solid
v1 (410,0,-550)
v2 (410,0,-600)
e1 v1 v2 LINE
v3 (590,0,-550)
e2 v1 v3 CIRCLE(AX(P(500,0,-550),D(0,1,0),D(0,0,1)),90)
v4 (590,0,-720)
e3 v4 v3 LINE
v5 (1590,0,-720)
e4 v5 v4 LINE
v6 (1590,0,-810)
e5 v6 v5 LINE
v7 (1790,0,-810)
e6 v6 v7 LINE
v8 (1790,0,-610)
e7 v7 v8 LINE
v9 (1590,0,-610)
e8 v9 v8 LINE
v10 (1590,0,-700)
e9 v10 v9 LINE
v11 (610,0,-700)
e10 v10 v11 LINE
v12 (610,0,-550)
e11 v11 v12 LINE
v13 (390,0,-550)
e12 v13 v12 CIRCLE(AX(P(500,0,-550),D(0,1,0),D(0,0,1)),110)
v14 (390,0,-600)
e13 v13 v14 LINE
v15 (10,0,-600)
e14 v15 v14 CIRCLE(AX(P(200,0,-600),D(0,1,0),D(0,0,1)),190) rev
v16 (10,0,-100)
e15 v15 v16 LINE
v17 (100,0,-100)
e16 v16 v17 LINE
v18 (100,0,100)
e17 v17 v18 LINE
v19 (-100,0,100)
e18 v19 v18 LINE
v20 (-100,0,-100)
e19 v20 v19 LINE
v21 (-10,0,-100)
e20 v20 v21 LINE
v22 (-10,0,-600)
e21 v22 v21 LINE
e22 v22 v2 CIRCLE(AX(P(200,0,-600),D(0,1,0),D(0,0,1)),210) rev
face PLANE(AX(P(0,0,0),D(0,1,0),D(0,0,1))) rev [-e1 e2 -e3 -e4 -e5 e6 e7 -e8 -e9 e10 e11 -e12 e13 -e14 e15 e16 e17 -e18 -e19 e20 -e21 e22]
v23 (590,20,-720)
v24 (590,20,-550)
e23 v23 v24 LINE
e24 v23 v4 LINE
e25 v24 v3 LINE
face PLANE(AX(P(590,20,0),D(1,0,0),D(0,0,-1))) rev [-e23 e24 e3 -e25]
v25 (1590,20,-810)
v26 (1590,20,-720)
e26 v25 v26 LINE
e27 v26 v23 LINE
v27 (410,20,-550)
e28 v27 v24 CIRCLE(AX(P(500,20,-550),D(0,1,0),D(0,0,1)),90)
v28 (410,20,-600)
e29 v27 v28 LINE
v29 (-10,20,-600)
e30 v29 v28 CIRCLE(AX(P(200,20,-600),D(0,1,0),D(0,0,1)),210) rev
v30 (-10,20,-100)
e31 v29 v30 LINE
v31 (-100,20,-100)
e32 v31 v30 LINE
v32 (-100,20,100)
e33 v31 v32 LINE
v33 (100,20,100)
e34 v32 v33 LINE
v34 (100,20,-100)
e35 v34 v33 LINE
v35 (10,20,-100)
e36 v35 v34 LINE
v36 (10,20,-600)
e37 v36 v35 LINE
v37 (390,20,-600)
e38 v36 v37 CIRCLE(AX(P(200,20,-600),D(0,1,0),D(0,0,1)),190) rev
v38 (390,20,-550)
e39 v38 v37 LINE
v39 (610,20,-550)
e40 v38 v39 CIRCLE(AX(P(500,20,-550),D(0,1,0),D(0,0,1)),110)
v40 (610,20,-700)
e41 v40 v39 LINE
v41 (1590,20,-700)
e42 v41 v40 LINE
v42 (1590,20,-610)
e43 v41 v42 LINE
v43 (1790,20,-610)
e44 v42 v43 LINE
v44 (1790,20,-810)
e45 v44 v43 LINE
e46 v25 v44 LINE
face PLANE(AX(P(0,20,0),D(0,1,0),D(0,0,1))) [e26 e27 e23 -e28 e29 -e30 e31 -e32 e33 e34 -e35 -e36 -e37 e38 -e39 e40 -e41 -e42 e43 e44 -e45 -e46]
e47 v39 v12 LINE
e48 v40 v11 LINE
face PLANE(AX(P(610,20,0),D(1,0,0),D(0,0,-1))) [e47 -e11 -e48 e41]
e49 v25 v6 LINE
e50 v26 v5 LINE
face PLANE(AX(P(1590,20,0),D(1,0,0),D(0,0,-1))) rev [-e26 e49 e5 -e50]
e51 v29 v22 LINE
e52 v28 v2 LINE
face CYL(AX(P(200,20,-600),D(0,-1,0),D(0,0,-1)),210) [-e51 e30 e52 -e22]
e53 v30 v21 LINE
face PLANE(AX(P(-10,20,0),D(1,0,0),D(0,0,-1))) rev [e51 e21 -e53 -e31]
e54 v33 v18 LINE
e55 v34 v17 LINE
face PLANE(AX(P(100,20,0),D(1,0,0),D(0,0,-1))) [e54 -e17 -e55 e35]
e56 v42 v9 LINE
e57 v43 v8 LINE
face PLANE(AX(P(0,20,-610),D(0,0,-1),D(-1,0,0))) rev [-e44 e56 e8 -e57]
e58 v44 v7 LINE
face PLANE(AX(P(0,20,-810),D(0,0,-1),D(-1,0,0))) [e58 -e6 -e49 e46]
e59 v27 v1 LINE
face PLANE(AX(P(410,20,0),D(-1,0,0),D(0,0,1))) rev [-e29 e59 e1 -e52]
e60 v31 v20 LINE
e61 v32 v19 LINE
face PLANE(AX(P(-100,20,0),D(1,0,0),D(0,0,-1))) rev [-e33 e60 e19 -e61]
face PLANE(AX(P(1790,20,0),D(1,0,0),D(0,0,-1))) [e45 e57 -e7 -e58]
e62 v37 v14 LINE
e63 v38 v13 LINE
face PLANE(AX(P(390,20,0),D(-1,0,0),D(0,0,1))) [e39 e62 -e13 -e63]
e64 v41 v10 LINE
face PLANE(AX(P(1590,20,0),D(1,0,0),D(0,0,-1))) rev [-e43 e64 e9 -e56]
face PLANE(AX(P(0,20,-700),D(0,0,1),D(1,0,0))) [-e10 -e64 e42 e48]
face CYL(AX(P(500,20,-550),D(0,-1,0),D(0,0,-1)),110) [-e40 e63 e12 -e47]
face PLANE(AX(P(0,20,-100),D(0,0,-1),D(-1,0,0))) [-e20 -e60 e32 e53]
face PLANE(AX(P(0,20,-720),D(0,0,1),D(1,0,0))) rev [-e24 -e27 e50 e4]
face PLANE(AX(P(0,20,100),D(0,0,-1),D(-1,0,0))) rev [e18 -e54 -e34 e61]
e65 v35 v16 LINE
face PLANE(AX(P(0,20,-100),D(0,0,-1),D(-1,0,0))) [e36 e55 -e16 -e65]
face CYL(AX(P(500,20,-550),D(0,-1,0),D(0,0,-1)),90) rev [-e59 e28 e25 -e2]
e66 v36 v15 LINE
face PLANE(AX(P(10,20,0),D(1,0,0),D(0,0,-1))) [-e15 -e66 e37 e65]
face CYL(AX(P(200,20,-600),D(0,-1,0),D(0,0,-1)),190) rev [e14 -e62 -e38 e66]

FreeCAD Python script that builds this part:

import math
import FreeCAD as App
import Part
import Sketcher

V = App.Vector

doc = App.newDocument("Part")
body = doc.addObject("PartDesign::Body", "Body")

sketch1 = body.newObject("Sketcher::SketchObject", "Sketch")
sketch1.AttachmentSupport = (doc.getObject("XZ_Plane"), [""])
sketch1.MapMode = "FlatFace"
sketch1.addGeometry([
    Part.LineSegment(V(-100, -100, 0), V(-100, 100, 0)),
    Part.LineSegment(V(-100, 100, 0), V(100, 100, 0)),
    Part.LineSegment(V(100, 100, 0), V(100, -100, 0)),
    Part.LineSegment(V(100, -100, 0), V(10, -100, 0)),
    Part.LineSegment(V(10, -100, 0), V(10, -600, 0)),
    Part.ArcOfCircle(Part.Circle(V(200, -600, 0), V(0, 0, 1), 190), math.radians(180), math.radians(360)),
    Part.LineSegment(V(390, -600, 0), V(390, -550, 0)),
    Part.ArcOfCircle(Part.Circle(V(500, -550, 0), V(0, 0, 1), 110), math.radians(0), math.radians(180)),
    Part.LineSegment(V(610, -550, 0), V(610, -700, 0)),
    Part.LineSegment(V(610, -700, 0), V(1590, -700, 0)),
    Part.LineSegment(V(1590, -700, 0), V(1590, -610, 0)),
    Part.LineSegment(V(1590, -610, 0), V(1790, -610, 0)),
    Part.LineSegment(V(1790, -610, 0), V(1790, -810, 0)),
    Part.LineSegment(V(1790, -810, 0), V(1590, -810, 0)),
    Part.LineSegment(V(1590, -810, 0), V(1590, -720, 0)),
    Part.LineSegment(V(1590, -720, 0), V(590, -720, 0)),
    Part.LineSegment(V(590, -720, 0), V(590, -550, 0)),
    Part.ArcOfCircle(Part.Circle(V(500, -550, 0), V(0, 0, 1), 90), math.radians(0), math.radians(180)),
    Part.LineSegment(V(410, -550, 0), V(410, -600, 0)),
    Part.ArcOfCircle(Part.Circle(V(200, -600, 0), V(0, 0, 1), 210), math.radians(180), math.radians(360)),
    Part.LineSegment(V(-10, -600, 0), V(-10, -100, 0)),
    Part.LineSegment(V(-10, -100, 0), V(-100, -100, 0)),
], False)
sketch1.addConstraint([
    Sketcher.Constraint("Coincident", 0, 2, 1, 1),
    Sketcher.Constraint("Coincident", 1, 2, 2, 1),
    Sketcher.Constraint("Coincident", 2, 2, 3, 1),
    Sketcher.Constraint("Coincident", 3, 2, 4, 1),
    Sketcher.Constraint("Tangent", 4, 2, 5, 1),
    Sketcher.Constraint("Tangent", 5, 2, 6, 1),
    Sketcher.Constraint("Tangent", 6, 2, 7, 2),
    Sketcher.Constraint("Tangent", 7, 1, 8, 1),
    Sketcher.Constraint("Coincident", 8, 2, 9, 1),
    Sketcher.Constraint("Coincident", 9, 2, 10, 1),
    Sketcher.Constraint("Coincident", 10, 2, 11, 1),
    Sketcher.Constraint("Coincident", 11, 2, 12, 1),
    Sketcher.Constraint("Coincident", 12, 2, 13, 1),
    Sketcher.Constraint("Coincident", 13, 2, 14, 1),
    Sketcher.Constraint("Coincident", 14, 2, 15, 1),
    Sketcher.Constraint("Coincident", 15, 2, 16, 1),
    Sketcher.Constraint("Tangent", 16, 2, 17, 1),
    Sketcher.Constraint("Tangent", 17, 2, 18, 1),
    Sketcher.Constraint("Tangent", 18, 2, 19, 2),
    Sketcher.Constraint("Tangent", 19, 1, 20, 1),
    Sketcher.Constraint("Coincident", 20, 2, 21, 1),
    Sketcher.Constraint("Coincident", 21, 2, 0, 1),
    Sketcher.Constraint("Vertical", 0),
    Sketcher.Constraint("Horizontal", 1),
    Sketcher.Constraint("Vertical", 2),
    Sketcher.Constraint("Horizontal", 3),
    Sketcher.Constraint("Vertical", 4),
    Sketcher.Constraint("Vertical", 6),
    Sketcher.Constraint("Vertical", 8),
    Sketcher.Constraint("Horizontal", 9),
    Sketcher.Constraint("Vertical", 10),
    Sketcher.Constraint("Horizontal", 11),
    Sketcher.Constraint("Vertical", 12),
    Sketcher.Constraint("Horizontal", 13),
    Sketcher.Constraint("Vertical", 14),
    Sketcher.Constraint("Horizontal", 15),
    Sketcher.Constraint("Vertical", 16),
    Sketcher.Constraint("Vertical", 18),
    Sketcher.Constraint("Vertical", 20),
    Sketcher.Constraint("Horizontal", 21),
    Sketcher.Constraint("Coincident", 17, 3, 7, 3),
    Sketcher.Constraint("Coincident", 19, 3, 5, 3),
    Sketcher.Constraint("Symmetric", 0, 2, 2, 2, -1, 1),
    Sketcher.Constraint("Symmetric", 3, 2, 20, 2, -2),
    Sketcher.Constraint("Vertical", 10, 2, 13, 2),
    Sketcher.Constraint("Equal", 1, 11),
    Sketcher.Constraint("Equal", 13, 0),
    Sketcher.Constraint("Equal", 21, 10),
    Sketcher.Constraint("Equal", 2, 12),
    Sketcher.Constraint("Equal", 10, 14),
    Sketcher.Constraint("Radius", 5, 190.0),
    Sketcher.Constraint("Radius", 7, 110.0),
    Sketcher.Constraint("Radius", 17, 90.0),
    Sketcher.Constraint("DistanceX", 1, 1, 1, 2, 200.0),
    Sketcher.Constraint("DistanceX", 9, 1, 9, 2, 980.0),
    Sketcher.Constraint("DistanceY", 4, 2, 4, 1, 500.0),
    Sketcher.Constraint("DistanceY", 6, 1, 6, 2, 50.0),
    Sketcher.Constraint("DistanceY", 8, 2, 8, 1, 150.0),
])
pad1 = body.newObject("PartDesign::Pad", "Pad")
pad1.Profile = sketch1
pad1.Length = 20
pad1.Reversed = True

doc.recompute()
